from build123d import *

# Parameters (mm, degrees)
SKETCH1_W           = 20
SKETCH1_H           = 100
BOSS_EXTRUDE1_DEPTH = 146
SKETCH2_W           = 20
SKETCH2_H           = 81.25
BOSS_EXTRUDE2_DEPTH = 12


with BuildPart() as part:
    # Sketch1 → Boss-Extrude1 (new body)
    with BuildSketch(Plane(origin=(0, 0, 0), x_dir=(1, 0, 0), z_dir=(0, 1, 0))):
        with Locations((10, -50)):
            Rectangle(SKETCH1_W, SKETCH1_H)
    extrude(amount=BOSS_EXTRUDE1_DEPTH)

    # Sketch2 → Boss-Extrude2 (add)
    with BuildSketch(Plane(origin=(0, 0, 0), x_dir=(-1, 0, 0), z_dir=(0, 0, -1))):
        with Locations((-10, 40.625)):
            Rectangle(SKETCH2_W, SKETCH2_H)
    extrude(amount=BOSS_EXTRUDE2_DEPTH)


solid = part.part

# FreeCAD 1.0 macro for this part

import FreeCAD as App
import Part
import Sketcher
from FreeCAD import Vector


def add_polygon(sketch, points):
    """Adds a closed chain of lines whose ends are joined by coincident constraints."""
    first, n = sketch.GeometryCount, len(points)
    for a, b in zip(points, points[1:] + points[:1]):
        sketch.addGeometry(Part.LineSegment(App.Vector(*a, 0), App.Vector(*b, 0)), False)
    for i in range(n):
        sketch.addConstraint(Sketcher.Constraint("Coincident", first + i, 2, first + (i + 1) % n, 1))

doc = App.newDocument("Part")
body = doc.addObject("PartDesign::Body", "Body")

sketch1 = doc.addObject("Sketcher::SketchObject", "Sketch")
body.addObject(sketch1)
sketch1.AttachmentSupport = (doc.XZ_Plane, [""])
sketch1.MapMode = "FlatFace"
add_polygon(sketch1, [(0, 0), (0, 100), (20, 100), (20, 0)])
sketch1.addConstraint([
    Sketcher.Constraint("Vertical", 0),
    Sketcher.Constraint("Horizontal", 1),
    Sketcher.Constraint("Vertical", 2),
    Sketcher.Constraint("Horizontal", 3),
    Sketcher.Constraint("Coincident", 3, 2, -1, 1),
    Sketcher.Constraint("DistanceX", 1, 1, 1, 2, 20.0),
    Sketcher.Constraint("DistanceY", 0, 1, 0, 2, 100.0),
])
pad1 = doc.addObject("PartDesign::Pad", "Pad")
body.addObject(pad1)
pad1.Profile = sketch1
pad1.Length = 146
pad1.Reversed = True

sketch2 = doc.addObject("Sketcher::SketchObject", "Sketch001")
body.addObject(sketch2)
sketch2.AttachmentSupport = (doc.XY_Plane, [""])
sketch2.MapMode = "FlatFace"
add_polygon(sketch2, [(20, 81), (20, 0), (0, 0), (0, 81)])
sketch2.addConstraint([
    Sketcher.Constraint("Vertical", 0),
    Sketcher.Constraint("Horizontal", 1),
    Sketcher.Constraint("Vertical", 2),
    Sketcher.Constraint("Horizontal", 3),
    Sketcher.Constraint("Coincident", 1, 2, -1, 1),
    Sketcher.Constraint("DistanceX", 1, 2, 1, 1, 20.0),
    Sketcher.Constraint("DistanceY", 0, 2, 0, 1, 81.25),
])
pad2 = doc.addObject("PartDesign::Pad", "Pad001")
body.addObject(pad2)
pad2.Profile = sketch2
pad2.Length = 12
pad2.Reversed = True

doc.recompute()
